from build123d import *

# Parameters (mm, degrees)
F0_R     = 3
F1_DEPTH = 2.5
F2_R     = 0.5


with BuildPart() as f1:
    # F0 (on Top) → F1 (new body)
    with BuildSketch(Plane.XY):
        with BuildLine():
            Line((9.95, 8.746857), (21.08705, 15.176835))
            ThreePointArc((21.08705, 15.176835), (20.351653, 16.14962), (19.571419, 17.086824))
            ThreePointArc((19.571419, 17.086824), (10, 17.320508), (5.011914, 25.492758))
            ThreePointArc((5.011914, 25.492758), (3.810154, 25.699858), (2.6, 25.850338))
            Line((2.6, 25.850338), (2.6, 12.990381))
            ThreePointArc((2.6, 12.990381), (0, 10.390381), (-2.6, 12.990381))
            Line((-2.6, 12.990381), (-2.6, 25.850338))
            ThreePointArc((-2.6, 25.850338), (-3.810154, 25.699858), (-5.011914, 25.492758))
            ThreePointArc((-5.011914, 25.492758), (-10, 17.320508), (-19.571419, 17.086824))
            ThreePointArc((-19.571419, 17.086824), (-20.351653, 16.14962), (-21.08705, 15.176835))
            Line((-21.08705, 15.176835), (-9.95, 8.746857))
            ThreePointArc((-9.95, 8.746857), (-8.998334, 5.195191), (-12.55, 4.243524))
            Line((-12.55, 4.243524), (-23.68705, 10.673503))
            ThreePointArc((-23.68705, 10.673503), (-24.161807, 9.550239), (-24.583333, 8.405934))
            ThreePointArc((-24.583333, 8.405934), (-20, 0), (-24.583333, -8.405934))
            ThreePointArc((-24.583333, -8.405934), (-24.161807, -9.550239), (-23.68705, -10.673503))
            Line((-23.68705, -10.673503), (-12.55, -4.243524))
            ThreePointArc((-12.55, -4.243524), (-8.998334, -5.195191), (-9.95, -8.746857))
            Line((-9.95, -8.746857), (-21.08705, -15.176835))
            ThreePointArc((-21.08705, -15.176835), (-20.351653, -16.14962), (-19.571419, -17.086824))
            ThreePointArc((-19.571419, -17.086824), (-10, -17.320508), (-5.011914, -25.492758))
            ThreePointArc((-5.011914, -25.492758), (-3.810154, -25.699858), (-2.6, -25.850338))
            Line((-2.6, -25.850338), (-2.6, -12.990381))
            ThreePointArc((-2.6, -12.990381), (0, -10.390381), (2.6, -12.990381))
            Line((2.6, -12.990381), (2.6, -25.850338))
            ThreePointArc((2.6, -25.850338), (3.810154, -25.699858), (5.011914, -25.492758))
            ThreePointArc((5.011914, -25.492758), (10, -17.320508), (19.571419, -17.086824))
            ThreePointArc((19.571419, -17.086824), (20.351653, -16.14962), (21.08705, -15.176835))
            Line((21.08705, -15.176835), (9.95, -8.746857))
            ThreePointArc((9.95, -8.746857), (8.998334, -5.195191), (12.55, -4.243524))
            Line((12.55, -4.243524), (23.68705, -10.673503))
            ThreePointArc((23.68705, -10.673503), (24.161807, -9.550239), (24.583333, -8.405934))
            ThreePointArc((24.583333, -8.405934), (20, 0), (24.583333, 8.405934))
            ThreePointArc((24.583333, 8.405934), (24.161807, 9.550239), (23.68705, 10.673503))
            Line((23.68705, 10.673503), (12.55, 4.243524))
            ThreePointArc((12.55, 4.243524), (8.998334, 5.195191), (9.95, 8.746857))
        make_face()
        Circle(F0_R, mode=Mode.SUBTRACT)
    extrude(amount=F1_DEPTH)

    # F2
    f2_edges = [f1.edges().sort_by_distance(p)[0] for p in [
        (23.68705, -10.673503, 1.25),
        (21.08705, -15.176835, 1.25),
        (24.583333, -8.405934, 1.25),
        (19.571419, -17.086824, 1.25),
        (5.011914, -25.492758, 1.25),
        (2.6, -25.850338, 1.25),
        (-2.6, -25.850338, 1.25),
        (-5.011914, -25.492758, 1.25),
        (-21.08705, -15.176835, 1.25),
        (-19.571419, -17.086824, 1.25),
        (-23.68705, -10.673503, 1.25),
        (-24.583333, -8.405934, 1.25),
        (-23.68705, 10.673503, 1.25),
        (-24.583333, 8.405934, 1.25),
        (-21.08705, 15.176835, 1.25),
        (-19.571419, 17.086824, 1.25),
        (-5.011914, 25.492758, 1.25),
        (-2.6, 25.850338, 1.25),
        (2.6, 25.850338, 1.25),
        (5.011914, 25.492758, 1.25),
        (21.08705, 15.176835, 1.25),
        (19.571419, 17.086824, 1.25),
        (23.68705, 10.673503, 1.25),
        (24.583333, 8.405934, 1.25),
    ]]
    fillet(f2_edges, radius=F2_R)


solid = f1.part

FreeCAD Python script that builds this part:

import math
import FreeCAD as App
import Part
import Sketcher
Q = App.Units.Quantity


def edges_at(feature, points):
    """Names of the edges that pass closest to the given points."""
    edges = feature.Shape.Edges
    near = lambda p: min(range(len(edges)), key=lambda i: edges[i].distToShape(Part.Vertex(*p))[0])
    return sorted({f"Edge{near(p) + 1}" for p in points})

doc = App.newDocument("Part")
body = doc.addObject("PartDesign::Body", "Body")

sketch1 = body.newObject("Sketcher::SketchObject", "Sketch")
sketch1.AttachmentSupport = (doc.getObject("XY_Plane"), [""])
sketch1.MapMode = "FlatFace"
sketch1.addGeometry(Part.LineSegment(App.Vector(9.95, 8.746857, 0), App.Vector(21.08705, 15.176835, 0)), False)
sketch1.addGeometry(Part.ArcOfCircle(Part.Circle(App.Vector(0.00012, 0.000095, 0), App.Vector(0, 0, 1), 25.980609), math.radians(35.743419), math.radians(41.122596)), False)
sketch1.addGeometry(Part.ArcOfCircle(Part.Circle(App.Vector(15, 25.980763, 0), App.Vector(0, 0, 1), 10.000001), math.radians(-177.202828), math.radians(-62.797172)), False)
sketch1.addGeometry(Part.ArcOfCircle(Part.Circle(App.Vector(-0.000019, -0.000153, 0), App.Vector(0, 0, 1), 25.980916), math.radians(78.877445), math.radians(84.256557)), False)
sketch1.addGeometry(Part.LineSegment(App.Vector(2.6, 25.850338, 0), App.Vector(2.6, 12.990381, 0)), False)
sketch1.addGeometry(Part.ArcOfCircle(Part.Circle(App.Vector(0, 12.990381, 0), App.Vector(0, 0, 1), 2.6), math.radians(180), math.radians(360)), False)
sketch1.addGeometry(Part.LineSegment(App.Vector(-2.6, 12.990381, 0), App.Vector(-2.6, 25.850338, 0)), False)
sketch1.addGeometry(Part.ArcOfCircle(Part.Circle(App.Vector(0.000019, -0.000153, 0), App.Vector(0, 0, 1), 25.980916), math.radians(95.743443), math.radians(101.122555)), False)
sketch1.addGeometry(Part.ArcOfCircle(Part.Circle(App.Vector(-15, 25.980763, 0), App.Vector(0, 0, 1), 10.000001), math.radians(-117.202828), math.radians(-2.797172)), False)
sketch1.addGeometry(Part.ArcOfCircle(Part.Circle(App.Vector(-0.00012, 0.000095, 0), App.Vector(0, 0, 1), 25.980609), math.radians(138.877404), math.radians(144.256581)), False)
sketch1.addGeometry(Part.LineSegment(App.Vector(-21.08705, 15.176835, 0), App.Vector(-9.95, 8.746857, 0)), False)
sketch1.addGeometry(Part.ArcOfCircle(Part.Circle(App.Vector(-11.250001, 6.495191, 0), App.Vector(0, 0, 1), 2.6), math.radians(-119.99998), math.radians(59.99999)), False)
sketch1.addGeometry(Part.LineSegment(App.Vector(-12.55, 4.243524, 0), App.Vector(-23.68705, 10.673503, 0)), False)
sketch1.addGeometry(Part.ArcOfCircle(Part.Circle(App.Vector(0.00022, -0.000083, 0), App.Vector(0, 0, 1), 25.980996), math.radians(155.743467), math.radians(161.122563)), False)
sketch1.addGeometry(Part.ArcOfCircle(Part.Circle(App.Vector(-30.000001, 0, 0), App.Vector(0, 0, 1), 10.000001), math.radians(-57.202827), math.radians(57.202827)), False)
sketch1.addGeometry(Part.ArcOfCircle(Part.Circle(App.Vector(0.00022, 0.000083, 0), App.Vector(0, 0, 1), 25.980996), math.radians(-161.122563), math.radians(-155.743467)), False)
sketch1.addGeometry(Part.LineSegment(App.Vector(-23.68705, -10.673503, 0), App.Vector(-12.55, -4.243524, 0)), False)
sketch1.addGeometry(Part.ArcOfCircle(Part.Circle(App.Vector(-11.250001, -6.495191, 0), App.Vector(0, 0, 1), 2.6), math.radians(-59.99999), math.radians(119.99998)), False)
sketch1.addGeometry(Part.LineSegment(App.Vector(-9.95, -8.746857, 0), App.Vector(-21.08705, -15.176835, 0)), False)
sketch1.addGeometry(Part.ArcOfCircle(Part.Circle(App.Vector(-0.00012, -0.000095, 0), App.Vector(0, 0, 1), 25.980609), math.radians(-144.256581), math.radians(-138.877404)), False)
sketch1.addGeometry(Part.ArcOfCircle(Part.Circle(App.Vector(-15, -25.980763, 0), App.Vector(0, 0, 1), 10.000001), math.radians(2.797172), math.radians(117.202828)), False)
sketch1.addGeometry(Part.ArcOfCircle(Part.Circle(App.Vector(0.000019, 0.000153, 0), App.Vector(0, 0, 1), 25.980916), math.radians(-101.122555), math.radians(-95.743443)), False)
sketch1.addGeometry(Part.LineSegment(App.Vector(-2.6, -25.850338, 0), App.Vector(-2.6, -12.990381, 0)), False)
sketch1.addGeometry(Part.ArcOfCircle(Part.Circle(App.Vector(0, -12.990381, 0), App.Vector(0, 0, 1), 2.6), math.radians(0), math.radians(180)), False)
sketch1.addGeometry(Part.LineSegment(App.Vector(2.6, -12.990381, 0), App.Vector(2.6, -25.850338, 0)), False)
sketch1.addGeometry(Part.ArcOfCircle(Part.Circle(App.Vector(-0.000019, 0.000153, 0), App.Vector(0, 0, 1), 25.980916), math.radians(-84.256557), math.radians(-78.877445)), False)
sketch1.addGeometry(Part.ArcOfCircle(Part.Circle(App.Vector(15, -25.980763, 0), App.Vector(0, 0, 1), 10.000001), math.radians(62.797172), math.radians(177.202828)), False)
sketch1.addGeometry(Part.ArcOfCircle(Part.Circle(App.Vector(0.00012, -0.000095, 0), App.Vector(0, 0, 1), 25.980609), math.radians(-41.122596), math.radians(-35.743419)), False)
sketch1.addGeometry(Part.LineSegment(App.Vector(21.08705, -15.176835, 0), App.Vector(9.95, -8.746857, 0)), False)
sketch1.addGeometry(Part.ArcOfCircle(Part.Circle(App.Vector(11.250001, -6.495191, 0), App.Vector(0, 0, 1), 2.6), math.radians(60.00002), math.radians(239.99999)), False)
sketch1.addGeometry(Part.LineSegment(App.Vector(12.55, -4.243524, 0), App.Vector(23.68705, -10.673503, 0)), False)
sketch1.addGeometry(Part.ArcOfCircle(Part.Circle(App.Vector(-0.00022, 0.000083, 0), App.Vector(0, 0, 1), 25.980996), math.radians(-24.256533), math.radians(-18.877437)), False)
sketch1.addGeometry(Part.ArcOfCircle(Part.Circle(App.Vector(30.000001, 0, 0), App.Vector(0, 0, 1), 10.000001), math.radians(122.797173), math.radians(237.202827)), False)
sketch1.addGeometry(Part.ArcOfCircle(Part.Circle(App.Vector(-0.00022, -0.000083, 0), App.Vector(0, 0, 1), 25.980996), math.radians(18.877437), math.radians(24.256533)), False)
sketch1.addGeometry(Part.LineSegment(App.Vector(23.68705, 10.673503, 0), App.Vector(12.55, 4.243524, 0)), False)
sketch1.addGeometry(Part.ArcOfCircle(Part.Circle(App.Vector(11.250001, 6.495191, 0), App.Vector(0, 0, 1), 2.6), math.radians(120.00001), math.radians(299.99998)), False)
sketch1.addGeometry(Part.Circle(App.Vector(0, 0, 0), App.Vector(0, 0, 1), 3), False)
sketch1.addConstraint(Sketcher.Constraint("Coincident", 0, 2, 1, 1))
sketch1.addConstraint(Sketcher.Constraint("Coincident", 1, 2, 2, 2))
sketch1.addConstraint(Sketcher.Constraint("Coincident", 2, 1, 3, 1))
sketch1.addConstraint(Sketcher.Constraint("Coincident", 3, 2, 4, 1))
sketch1.addConstraint(Sketcher.Constraint("Tangent", 4, 2, 5, 2))
sketch1.addConstraint(Sketcher.Constraint("Tangent", 5, 1, 6, 1))
sketch1.addConstraint(Sketcher.Constraint("Coincident", 6, 2, 7, 1))
sketch1.addConstraint(Sketcher.Constraint("Coincident", 7, 2, 8, 2))
sketch1.addConstraint(Sketcher.Constraint("Coincident", 8, 1, 9, 1))
sketch1.addConstraint(Sketcher.Constraint("Coincident", 9, 2, 10, 1))
sketch1.addConstraint(Sketcher.Constraint("Tangent", 10, 2, 11, 2))
sketch1.addConstraint(Sketcher.Constraint("Tangent", 11, 1, 12, 1))
sketch1.addConstraint(Sketcher.Constraint("Coincident", 12, 2, 13, 1))
sketch1.addConstraint(Sketcher.Constraint("Coincident", 13, 2, 14, 2))
sketch1.addConstraint(Sketcher.Constraint("Coincident", 14, 1, 15, 1))
sketch1.addConstraint(Sketcher.Constraint("Coincident", 15, 2, 16, 1))
sketch1.addConstraint(Sketcher.Constraint("Tangent", 16, 2, 17, 2))
sketch1.addConstraint(Sketcher.Constraint("Tangent", 17, 1, 18, 1))
sketch1.addConstraint(Sketcher.Constraint("Coincident", 18, 2, 19, 1))
sketch1.addConstraint(Sketcher.Constraint("Coincident", 19, 2, 20, 2))
sketch1.addConstraint(Sketcher.Constraint("Coincident", 20, 1, 21, 1))
sketch1.addConstraint(Sketcher.Constraint("Coincident", 21, 2, 22, 1))
sketch1.addConstraint(Sketcher.Constraint("Tangent", 22, 2, 23, 2))
sketch1.addConstraint(Sketcher.Constraint("Tangent", 23, 1, 24, 1))
sketch1.addConstraint(Sketcher.Constraint("Coincident", 24, 2, 25, 1))
sketch1.addConstraint(Sketcher.Constraint("Coincident", 25, 2, 26, 2))
sketch1.addConstraint(Sketcher.Constraint("Coincident", 26, 1, 27, 1))
sketch1.addConstraint(Sketcher.Constraint("Coincident", 27, 2, 28, 1))
sketch1.addConstraint(Sketcher.Constraint("Tangent", 28, 2, 29, 2))
sketch1.addConstraint(Sketcher.Constraint("Tangent", 29, 1, 30, 1))
sketch1.addConstraint(Sketcher.Constraint("Coincident", 30, 2, 31, 1))
sketch1.addConstraint(Sketcher.Constraint("Coincident", 31, 2, 32, 2))
sketch1.addConstraint(Sketcher.Constraint("Coincident", 32, 1, 33, 1))
sketch1.addConstraint(Sketcher.Constraint("Coincident", 33, 2, 34, 1))
sketch1.addConstraint(Sketcher.Constraint("Tangent", 34, 2, 35, 2))
sketch1.addConstraint(Sketcher.Constraint("Tangent", 35, 1, 0, 1))
sketch1.addConstraint(Sketcher.Constraint("Vertical", 4))
sketch1.addConstraint(Sketcher.Constraint("Vertical", 6))
sketch1.addConstraint(Sketcher.Constraint("Vertical", 22))
sketch1.addConstraint(Sketcher.Constraint("Vertical", 24))
sketch1.addConstraint(Sketcher.Constraint("Coincident", 36, 3, -1, 1))
sketch1.addConstraint(Sketcher.Constraint("Equal", 3, 7))
sketch1.addConstraint(Sketcher.Constraint("Equal", 2, 8))
sketch1.addConstraint(Sketcher.Constraint("Equal", 1, 9))
sketch1.addConstraint(Sketcher.Constraint("Equal", 5, 11))
sketch1.addConstraint(Sketcher.Constraint("Equal", 8, 14))
sketch1.addConstraint(Sketcher.Constraint("Equal", 13, 15))
sketch1.addConstraint(Sketcher.Constraint("Equal", 11, 17))
sketch1.addConstraint(Sketcher.Constraint("Equal", 9, 19))
sketch1.addConstraint(Sketcher.Constraint("Equal", 14, 20))
sketch1.addConstraint(Sketcher.Constraint("Equal", 7, 21))
sketch1.addConstraint(Sketcher.Constraint("Equal", 17, 23))
sketch1.addConstraint(Sketcher.Constraint("Equal", 21, 25))
sketch1.addConstraint(Sketcher.Constraint("Equal", 20, 26))
sketch1.addConstraint(Sketcher.Constraint("Equal", 19, 27))
sketch1.addConstraint(Sketcher.Constraint("Equal", 23, 29))
sketch1.addConstraint(Sketcher.Constraint("Equal", 15, 31))
sketch1.addConstraint(Sketcher.Constraint("Equal", 26, 32))
sketch1.addConstraint(Sketcher.Constraint("Equal", 31, 33))
sketch1.addConstraint(Sketcher.Constraint("Equal", 29, 35))
sketch1.addConstraint(Sketcher.Constraint("Symmetric", 1, 3, 19, 3, -1, 1))
sketch1.addConstraint(Sketcher.Constraint("Symmetric", 2, 3, 20, 3, -1, 1))
sketch1.addConstraint(Sketcher.Constraint("Symmetric", 3, 3, 21, 3, -1, 1))
sketch1.addConstraint(Sketcher.Constraint("Symmetric", 5, 3, 23, 3, -1, 1))
sketch1.addConstraint(Sketcher.Constraint("Symmetric", 7, 3, 25, 3, -1, 1))
sketch1.addConstraint(Sketcher.Constraint("Symmetric", 8, 3, 26, 3, -1, 1))
sketch1.addConstraint(Sketcher.Constraint("Symmetric", 9, 3, 27, 3, -1, 1))
sketch1.addConstraint(Sketcher.Constraint("Symmetric", 11, 3, 29, 3, -1, 1))
sketch1.addConstraint(Sketcher.Constraint("Symmetric", 13, 3, 31, 3, -1, 1))
sketch1.addConstraint(Sketcher.Constraint("Symmetric", 14, 3, 32, 3, -1, 1))
sketch1.addConstraint(Sketcher.Constraint("Symmetric", 15, 3, 33, 3, -1, 1))
sketch1.addConstraint(Sketcher.Constraint("Symmetric", 17, 3, 35, 3, -1, 1))
sketch1.addConstraint(Sketcher.Constraint("Symmetric", 3, 3, 7, 3, -2))
sketch1.addConstraint(Sketcher.Constraint("Symmetric", 2, 3, 8, 3, -2))
sketch1.addConstraint(Sketcher.Constraint("Symmetric", 1, 3, 9, 3, -2))
sketch1.addConstraint(Sketcher.Constraint("Symmetric", 17, 3, 29, 3, -2))
sketch1.addConstraint(Sketcher.Constraint("Symmetric", 15, 3, 31, 3, -2))
sketch1.addConstraint(Sketcher.Constraint("PointOnObject", 5, 3, -2))
sketch1.addConstraint(Sketcher.Constraint("PointOnObject", 14, 3, -1))
sketch1.addConstraint(Sketcher.Constraint("Parallel", 10, 12))
sketch1.addConstraint(Sketcher.Constraint("Parallel", 0, 16))
sketch1.addConstraint(Sketcher.Constraint("Parallel", 16, 18))
sketch1.addConstraint(Sketcher.Constraint("Parallel", 12, 28))
sketch1.addConstraint(Sketcher.Constraint("Parallel", 28, 30))
sketch1.addConstraint(Sketcher.Constraint("Parallel", 18, 34))
sketch1.addConstraint(Sketcher.Constraint("Horizontal", 0, 2, 9, 2))
sketch1.addConstraint(Sketcher.Constraint("Equal", 10, 12))
sketch1.addConstraint(Sketcher.Constraint("Diameter", 36, 6.0))
sketch1.addConstraint(Sketcher.Constraint("Radius", 2, 10.000001))
sketch1.addConstraint(Sketcher.Constraint("Radius", 5, 2.6))
sketch1.addConstraint(Sketcher.Constraint("Angle", 0, Q("29.999997 deg")))
sketch1.addConstraint(Sketcher.Constraint("DistanceX", -1, 1, 2, 3, 15.0))
sketch1.addConstraint(Sketcher.Constraint("DistanceX", 14, 3, -1, 1, 30.000001))
sketch1.addConstraint(Sketcher.Constraint("DistanceX", 11, 3, -1, 1, 11.250001))
sketch1.addConstraint(Sketcher.Constraint("Radius", 1, 25.980609))
sketch1.addConstraint(Sketcher.Constraint("Radius", 3, 25.980916))
sketch1.addConstraint(Sketcher.Constraint("Radius", 13, 25.980996))
sketch1.addConstraint(Sketcher.Constraint("DistanceY", 4, 2, 4, 1, 12.859957))
sketch1.addConstraint(Sketcher.Constraint("DistanceX", -1, 1, 1, 3, 0.00012))
sketch1.addConstraint(Sketcher.Constraint("DistanceY", -1, 1, 5, 3, 12.990381))
sketch1.addConstraint(Sketcher.Constraint("DistanceY", -1, 1, 11, 3, 6.495191))
sketch1.addConstraint(Sketcher.Constraint("DistanceX", -1, 1, 13, 3, 0.00022))
sketch1.addConstraint(Sketcher.Constraint("DistanceX", -1, 1, 0, 2, 21.08705))
sketch1.addConstraint(Sketcher.Constraint("DistanceX", -1, 1, 1, 2, 19.571419))
sketch1.addConstraint(Sketcher.Constraint("DistanceY", 3, 3, -1, 1, 0.000153))
pad1 = body.newObject("PartDesign::Pad", "Pad")
pad1.Profile = sketch1
pad1.Length = 2.5
doc.recompute()

fillet = body.newObject("PartDesign::Fillet", "Fillet")
fillet.Base = (pad1, edges_at(pad1, [
    (23.687, -10.674, 1.25),
    (21.087, -15.177, 1.25),
    (24.583, -8.406, 1.25),
    (19.571, -17.087, 1.25),
    (5.012, -25.493, 1.25),
    (2.6, -25.85, 1.25),
    (-2.6, -25.85, 1.25),
    (-5.012, -25.493, 1.25),
    (-21.087, -15.177, 1.25),
    (-19.571, -17.087, 1.25),
    (-23.687, -10.674, 1.25),
    (-24.583, -8.406, 1.25),
    (-23.687, 10.674, 1.25),
    (-24.583, 8.406, 1.25),
    (-21.087, 15.177, 1.25),
    (-19.571, 17.087, 1.25),
    (-5.012, 25.493, 1.25),
    (-2.6, 25.85, 1.25),
    (2.6, 25.85, 1.25),
    (5.012, 25.493, 1.25),
    (21.087, 15.177, 1.25),
    (19.571, 17.087, 1.25),
    (23.687, 10.674, 1.25),
    (24.583, 8.406, 1.25),
]))
fillet.Radius = 0.5

doc.recompute()
